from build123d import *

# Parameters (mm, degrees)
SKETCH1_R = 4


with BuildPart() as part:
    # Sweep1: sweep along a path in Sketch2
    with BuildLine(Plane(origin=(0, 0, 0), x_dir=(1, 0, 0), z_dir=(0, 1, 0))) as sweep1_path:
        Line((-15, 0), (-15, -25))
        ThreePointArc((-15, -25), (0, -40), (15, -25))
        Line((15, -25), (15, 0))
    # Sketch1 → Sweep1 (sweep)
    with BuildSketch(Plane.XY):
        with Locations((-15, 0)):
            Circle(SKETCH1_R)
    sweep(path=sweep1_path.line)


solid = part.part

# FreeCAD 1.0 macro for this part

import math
import FreeCAD as App
import Part
import Sketcher

V = App.Vector
Q = App.Units.Quantity

doc = App.newDocument("Part")
body = doc.addObject("PartDesign::Body", "Body")

sketch1 = doc.addObject("Sketcher::SketchObject", "Sketch")
body.addObject(sketch1)
sketch1.AttachmentSupport = (doc.XY_Plane, [""])
sketch1.MapMode = "FlatFace"
sketch1.addGeometry(Part.Circle(V(-15, 0, 0), V(0, 0, 1), 4), False)
sketch1.addConstraint([
    Sketcher.Constraint("PointOnObject", 0, 3, -1),
    Sketcher.Constraint("Diameter", 0, Q("8 mm")),
    Sketcher.Constraint("DistanceX", 0, 3, -1, 1, Q("15 mm")),
])

sketch2 = doc.addObject("Sketcher::SketchObject", "Sketch001")
body.addObject(sketch2)
sketch2.AttachmentSupport = (doc.XZ_Plane, [""])
sketch2.MapMode = "FlatFace"
sketch2.addGeometry([
    Part.LineSegment(V(-15, 0, 0), V(-15, 25, 0)),
    Part.ArcOfCircle(Part.Circle(V(0, 25, 0), V(0, 0, 1), 15), math.radians(0), math.radians(180)),
    Part.LineSegment(V(15, 25, 0), V(15, 0, 0)),
], False)
sketch2.addConstraint([
    Sketcher.Constraint("Tangent", 0, 2, 1, 2),
    Sketcher.Constraint("Tangent", 1, 1, 2, 1),
    Sketcher.Constraint("Vertical", 0),
    Sketcher.Constraint("Vertical", 2),
    Sketcher.Constraint("Symmetric", 0, 1, 2, 2, -1, 1),
    Sketcher.Constraint("PointOnObject", 0, 1, -1),
    Sketcher.Constraint("Radius", 1, Q("15 mm")),
    Sketcher.Constraint("DistanceY", 0, 1, 0, 2, Q("25 mm")),
])
doc.recompute()

additivepipe = doc.addObject("PartDesign::AdditivePipe", "AdditivePipe")
body.addObject(additivepipe)
additivepipe.Profile = sketch1
additivepipe.Spine = (sketch2, ["Edge1", "Edge2", "Edge3"])

doc.recompute()
